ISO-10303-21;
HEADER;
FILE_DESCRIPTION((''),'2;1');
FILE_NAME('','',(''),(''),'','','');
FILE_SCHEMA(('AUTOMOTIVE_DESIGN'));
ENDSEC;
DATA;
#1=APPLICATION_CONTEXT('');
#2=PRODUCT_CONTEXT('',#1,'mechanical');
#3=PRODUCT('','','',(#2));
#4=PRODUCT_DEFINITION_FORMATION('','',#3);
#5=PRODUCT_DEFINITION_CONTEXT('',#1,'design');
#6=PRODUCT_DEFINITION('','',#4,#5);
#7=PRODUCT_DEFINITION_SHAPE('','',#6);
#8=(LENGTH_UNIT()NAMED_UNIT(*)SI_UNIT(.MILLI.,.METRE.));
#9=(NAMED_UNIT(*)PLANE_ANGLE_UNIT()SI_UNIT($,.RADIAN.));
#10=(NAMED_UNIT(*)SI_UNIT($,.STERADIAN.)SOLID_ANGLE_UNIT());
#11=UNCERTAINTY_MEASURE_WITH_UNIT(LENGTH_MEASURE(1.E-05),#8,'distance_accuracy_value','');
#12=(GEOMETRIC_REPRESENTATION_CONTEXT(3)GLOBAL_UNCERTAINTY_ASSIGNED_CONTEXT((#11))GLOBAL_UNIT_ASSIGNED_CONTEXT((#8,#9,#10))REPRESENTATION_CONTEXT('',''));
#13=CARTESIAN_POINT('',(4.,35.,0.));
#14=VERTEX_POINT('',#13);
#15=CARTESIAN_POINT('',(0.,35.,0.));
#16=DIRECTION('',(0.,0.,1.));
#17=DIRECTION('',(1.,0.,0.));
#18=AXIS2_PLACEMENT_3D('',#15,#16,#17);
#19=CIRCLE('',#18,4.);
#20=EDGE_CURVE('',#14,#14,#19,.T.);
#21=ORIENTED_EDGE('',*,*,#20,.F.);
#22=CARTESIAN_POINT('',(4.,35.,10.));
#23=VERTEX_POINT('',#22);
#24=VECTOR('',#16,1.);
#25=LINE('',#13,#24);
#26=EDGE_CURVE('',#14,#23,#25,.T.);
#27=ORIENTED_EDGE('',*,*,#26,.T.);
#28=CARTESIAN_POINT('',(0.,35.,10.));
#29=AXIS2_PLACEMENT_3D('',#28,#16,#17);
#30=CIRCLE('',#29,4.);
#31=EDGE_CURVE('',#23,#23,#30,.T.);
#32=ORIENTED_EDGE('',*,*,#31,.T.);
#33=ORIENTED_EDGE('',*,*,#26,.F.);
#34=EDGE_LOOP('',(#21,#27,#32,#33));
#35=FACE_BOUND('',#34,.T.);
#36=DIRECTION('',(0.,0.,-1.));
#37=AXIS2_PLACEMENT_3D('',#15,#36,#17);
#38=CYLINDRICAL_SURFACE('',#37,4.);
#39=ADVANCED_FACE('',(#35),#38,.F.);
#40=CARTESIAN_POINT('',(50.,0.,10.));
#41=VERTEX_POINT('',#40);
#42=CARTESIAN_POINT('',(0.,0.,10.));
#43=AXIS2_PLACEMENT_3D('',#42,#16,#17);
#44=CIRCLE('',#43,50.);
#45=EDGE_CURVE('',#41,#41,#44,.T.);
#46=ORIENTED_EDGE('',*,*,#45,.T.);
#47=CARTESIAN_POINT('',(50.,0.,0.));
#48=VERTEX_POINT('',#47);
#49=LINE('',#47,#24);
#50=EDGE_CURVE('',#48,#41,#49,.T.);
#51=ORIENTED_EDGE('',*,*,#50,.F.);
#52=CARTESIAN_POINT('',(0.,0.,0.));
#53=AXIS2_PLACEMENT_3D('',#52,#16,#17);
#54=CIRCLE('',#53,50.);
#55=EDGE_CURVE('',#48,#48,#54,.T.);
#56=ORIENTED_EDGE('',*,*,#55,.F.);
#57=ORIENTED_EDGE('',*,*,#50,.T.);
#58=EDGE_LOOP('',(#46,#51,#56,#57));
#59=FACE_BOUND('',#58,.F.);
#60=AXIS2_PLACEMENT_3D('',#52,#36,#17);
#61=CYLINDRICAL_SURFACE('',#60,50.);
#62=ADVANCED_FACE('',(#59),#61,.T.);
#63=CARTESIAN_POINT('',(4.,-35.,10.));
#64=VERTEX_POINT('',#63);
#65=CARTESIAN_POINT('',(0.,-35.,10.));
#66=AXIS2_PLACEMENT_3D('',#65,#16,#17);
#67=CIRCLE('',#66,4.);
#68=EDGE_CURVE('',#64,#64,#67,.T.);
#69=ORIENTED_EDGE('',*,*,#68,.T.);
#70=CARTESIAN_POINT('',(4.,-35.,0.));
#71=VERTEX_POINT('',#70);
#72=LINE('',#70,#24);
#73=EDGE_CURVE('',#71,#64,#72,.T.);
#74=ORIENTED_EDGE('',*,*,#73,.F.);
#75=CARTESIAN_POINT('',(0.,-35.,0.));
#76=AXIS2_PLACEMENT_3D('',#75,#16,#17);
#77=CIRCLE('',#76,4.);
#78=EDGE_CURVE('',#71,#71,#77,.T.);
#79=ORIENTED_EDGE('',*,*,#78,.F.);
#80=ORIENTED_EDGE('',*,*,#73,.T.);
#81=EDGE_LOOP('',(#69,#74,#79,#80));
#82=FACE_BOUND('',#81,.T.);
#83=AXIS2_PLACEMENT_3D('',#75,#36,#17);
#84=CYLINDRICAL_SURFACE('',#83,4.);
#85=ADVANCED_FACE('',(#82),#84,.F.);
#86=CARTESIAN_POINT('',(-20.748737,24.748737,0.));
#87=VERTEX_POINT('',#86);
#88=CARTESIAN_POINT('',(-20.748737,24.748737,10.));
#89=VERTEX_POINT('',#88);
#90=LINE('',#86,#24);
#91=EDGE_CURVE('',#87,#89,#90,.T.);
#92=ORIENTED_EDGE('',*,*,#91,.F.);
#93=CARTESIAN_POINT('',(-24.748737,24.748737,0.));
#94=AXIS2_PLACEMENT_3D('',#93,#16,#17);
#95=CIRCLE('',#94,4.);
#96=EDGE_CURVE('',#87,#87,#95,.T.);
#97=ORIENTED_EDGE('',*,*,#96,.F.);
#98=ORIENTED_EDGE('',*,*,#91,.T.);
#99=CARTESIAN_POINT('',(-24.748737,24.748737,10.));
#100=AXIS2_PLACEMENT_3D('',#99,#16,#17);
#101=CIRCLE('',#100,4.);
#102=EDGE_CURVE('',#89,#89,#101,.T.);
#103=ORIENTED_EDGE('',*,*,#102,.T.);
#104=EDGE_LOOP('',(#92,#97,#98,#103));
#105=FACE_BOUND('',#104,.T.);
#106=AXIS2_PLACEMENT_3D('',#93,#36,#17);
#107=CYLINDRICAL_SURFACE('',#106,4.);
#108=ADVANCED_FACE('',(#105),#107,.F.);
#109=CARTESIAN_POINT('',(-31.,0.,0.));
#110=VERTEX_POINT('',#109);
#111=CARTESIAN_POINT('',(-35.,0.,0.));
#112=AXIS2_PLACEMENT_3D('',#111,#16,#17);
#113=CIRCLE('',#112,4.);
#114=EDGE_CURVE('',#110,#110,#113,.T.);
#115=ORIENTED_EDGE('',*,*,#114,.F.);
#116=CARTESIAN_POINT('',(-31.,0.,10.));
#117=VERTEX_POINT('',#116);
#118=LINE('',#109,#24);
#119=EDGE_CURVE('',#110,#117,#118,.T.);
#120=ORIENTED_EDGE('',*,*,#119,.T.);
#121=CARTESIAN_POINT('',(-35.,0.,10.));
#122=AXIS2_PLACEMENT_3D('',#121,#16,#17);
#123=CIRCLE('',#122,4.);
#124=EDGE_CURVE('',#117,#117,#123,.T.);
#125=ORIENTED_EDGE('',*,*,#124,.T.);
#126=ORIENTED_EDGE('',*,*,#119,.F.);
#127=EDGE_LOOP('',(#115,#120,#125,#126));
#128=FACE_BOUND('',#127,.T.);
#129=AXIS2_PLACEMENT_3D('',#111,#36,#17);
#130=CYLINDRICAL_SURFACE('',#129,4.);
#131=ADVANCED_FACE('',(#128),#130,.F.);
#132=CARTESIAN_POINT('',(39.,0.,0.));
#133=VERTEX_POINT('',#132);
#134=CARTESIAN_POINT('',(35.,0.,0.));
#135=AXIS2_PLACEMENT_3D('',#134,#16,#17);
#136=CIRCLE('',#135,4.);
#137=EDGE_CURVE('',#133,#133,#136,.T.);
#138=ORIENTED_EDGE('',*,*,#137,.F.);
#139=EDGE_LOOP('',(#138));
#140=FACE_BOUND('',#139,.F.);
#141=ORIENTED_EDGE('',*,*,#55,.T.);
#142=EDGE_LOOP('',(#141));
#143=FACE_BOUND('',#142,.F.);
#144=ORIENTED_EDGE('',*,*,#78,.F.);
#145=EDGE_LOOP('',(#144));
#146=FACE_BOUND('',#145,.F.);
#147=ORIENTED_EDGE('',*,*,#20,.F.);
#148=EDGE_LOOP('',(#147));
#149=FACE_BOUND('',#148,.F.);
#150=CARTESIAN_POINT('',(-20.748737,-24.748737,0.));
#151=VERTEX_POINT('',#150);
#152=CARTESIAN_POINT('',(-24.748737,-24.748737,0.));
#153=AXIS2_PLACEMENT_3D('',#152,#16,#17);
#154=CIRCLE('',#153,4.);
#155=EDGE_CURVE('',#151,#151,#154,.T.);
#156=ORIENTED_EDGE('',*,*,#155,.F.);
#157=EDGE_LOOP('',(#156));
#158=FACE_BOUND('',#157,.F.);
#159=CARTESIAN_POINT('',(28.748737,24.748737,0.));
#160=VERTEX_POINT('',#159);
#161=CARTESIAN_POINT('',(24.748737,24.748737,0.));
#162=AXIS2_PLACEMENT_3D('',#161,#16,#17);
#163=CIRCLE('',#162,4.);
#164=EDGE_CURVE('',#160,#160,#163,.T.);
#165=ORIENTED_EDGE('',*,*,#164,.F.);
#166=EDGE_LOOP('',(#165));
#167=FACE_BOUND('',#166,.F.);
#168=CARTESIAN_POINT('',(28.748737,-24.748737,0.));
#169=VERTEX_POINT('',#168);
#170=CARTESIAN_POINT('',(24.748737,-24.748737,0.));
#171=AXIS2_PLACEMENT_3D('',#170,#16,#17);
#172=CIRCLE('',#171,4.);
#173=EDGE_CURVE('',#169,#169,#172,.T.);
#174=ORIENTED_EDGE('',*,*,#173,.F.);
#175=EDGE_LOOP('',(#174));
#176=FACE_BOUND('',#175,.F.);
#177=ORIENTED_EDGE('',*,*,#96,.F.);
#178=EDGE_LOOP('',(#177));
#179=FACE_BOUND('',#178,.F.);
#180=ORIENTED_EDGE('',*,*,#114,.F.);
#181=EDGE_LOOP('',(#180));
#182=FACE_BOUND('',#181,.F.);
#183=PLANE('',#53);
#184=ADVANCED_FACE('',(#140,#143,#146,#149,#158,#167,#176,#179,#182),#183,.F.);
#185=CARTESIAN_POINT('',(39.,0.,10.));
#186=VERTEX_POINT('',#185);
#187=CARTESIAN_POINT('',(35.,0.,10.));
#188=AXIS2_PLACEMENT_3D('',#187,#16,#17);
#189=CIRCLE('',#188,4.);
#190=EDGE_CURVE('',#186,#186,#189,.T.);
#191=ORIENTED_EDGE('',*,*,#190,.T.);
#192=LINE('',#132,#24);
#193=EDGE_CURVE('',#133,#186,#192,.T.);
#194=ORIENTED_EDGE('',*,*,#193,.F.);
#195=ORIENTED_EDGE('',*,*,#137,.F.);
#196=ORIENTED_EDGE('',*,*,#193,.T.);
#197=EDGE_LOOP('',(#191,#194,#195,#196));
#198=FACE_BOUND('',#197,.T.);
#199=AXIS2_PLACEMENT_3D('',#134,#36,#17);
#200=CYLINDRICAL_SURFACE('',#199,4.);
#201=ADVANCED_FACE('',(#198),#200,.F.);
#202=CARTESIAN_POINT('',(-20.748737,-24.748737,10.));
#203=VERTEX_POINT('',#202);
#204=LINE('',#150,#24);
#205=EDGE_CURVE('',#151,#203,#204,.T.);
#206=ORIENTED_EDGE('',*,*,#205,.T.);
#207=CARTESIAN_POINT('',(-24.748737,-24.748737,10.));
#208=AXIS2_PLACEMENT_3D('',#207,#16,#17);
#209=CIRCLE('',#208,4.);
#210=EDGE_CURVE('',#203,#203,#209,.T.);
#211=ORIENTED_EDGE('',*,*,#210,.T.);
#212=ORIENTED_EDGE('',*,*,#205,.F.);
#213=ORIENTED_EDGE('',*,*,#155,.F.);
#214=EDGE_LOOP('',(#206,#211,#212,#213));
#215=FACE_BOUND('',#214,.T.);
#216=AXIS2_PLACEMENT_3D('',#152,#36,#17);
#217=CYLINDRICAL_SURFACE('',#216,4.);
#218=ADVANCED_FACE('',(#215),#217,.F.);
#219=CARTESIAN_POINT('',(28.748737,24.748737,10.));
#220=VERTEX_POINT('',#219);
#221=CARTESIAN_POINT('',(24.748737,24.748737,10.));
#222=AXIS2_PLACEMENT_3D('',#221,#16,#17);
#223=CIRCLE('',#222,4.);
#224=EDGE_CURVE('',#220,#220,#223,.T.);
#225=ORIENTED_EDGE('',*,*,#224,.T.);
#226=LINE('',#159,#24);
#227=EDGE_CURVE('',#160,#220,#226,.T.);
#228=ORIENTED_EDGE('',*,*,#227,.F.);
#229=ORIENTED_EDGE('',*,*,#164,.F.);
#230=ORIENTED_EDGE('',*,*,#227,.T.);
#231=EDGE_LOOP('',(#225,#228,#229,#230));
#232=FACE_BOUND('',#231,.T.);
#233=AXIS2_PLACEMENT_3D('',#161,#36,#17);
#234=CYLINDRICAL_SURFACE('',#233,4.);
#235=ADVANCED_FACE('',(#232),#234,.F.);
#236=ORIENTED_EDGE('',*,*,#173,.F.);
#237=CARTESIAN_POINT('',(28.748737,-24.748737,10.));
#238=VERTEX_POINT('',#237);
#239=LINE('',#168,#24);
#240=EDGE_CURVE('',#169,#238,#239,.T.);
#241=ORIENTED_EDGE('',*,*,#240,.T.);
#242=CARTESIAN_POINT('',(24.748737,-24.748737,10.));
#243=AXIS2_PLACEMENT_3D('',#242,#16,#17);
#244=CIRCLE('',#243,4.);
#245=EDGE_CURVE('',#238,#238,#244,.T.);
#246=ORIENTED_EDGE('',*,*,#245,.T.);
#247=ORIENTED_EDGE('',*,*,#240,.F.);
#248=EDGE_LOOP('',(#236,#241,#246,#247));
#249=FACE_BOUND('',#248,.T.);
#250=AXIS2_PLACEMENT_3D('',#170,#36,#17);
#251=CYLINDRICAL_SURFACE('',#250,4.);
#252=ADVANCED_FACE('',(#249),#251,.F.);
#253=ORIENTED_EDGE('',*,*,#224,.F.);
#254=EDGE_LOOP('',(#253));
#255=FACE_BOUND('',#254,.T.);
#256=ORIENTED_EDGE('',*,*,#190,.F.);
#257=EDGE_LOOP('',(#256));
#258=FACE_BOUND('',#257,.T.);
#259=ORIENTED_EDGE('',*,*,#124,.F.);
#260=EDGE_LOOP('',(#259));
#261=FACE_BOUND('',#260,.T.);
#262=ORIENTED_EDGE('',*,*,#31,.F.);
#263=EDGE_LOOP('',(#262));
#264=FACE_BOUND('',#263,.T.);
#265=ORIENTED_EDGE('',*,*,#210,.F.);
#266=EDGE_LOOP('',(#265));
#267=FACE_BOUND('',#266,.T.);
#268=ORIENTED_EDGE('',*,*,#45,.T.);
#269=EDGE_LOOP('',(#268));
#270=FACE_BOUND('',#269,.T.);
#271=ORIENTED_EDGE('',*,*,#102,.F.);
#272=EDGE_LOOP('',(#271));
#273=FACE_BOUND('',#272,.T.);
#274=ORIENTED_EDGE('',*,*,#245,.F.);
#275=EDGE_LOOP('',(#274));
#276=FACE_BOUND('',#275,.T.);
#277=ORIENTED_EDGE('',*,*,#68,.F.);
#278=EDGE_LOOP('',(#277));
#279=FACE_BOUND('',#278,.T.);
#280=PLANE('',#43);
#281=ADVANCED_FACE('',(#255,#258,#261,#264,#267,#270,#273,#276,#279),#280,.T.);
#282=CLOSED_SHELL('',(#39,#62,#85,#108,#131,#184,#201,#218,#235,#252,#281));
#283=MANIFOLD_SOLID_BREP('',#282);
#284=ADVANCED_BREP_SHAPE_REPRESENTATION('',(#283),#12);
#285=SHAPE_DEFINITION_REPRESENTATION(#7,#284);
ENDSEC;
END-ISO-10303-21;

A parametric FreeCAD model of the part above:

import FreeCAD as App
import Part
import Sketcher
from FreeCAD import Vector
Q = App.Units.Quantity

doc = App.newDocument("Part")
body = doc.addObject("PartDesign::Body", "Body")

# Sketch on XY plane
sketch1 = body.newObject("Sketcher::SketchObject", "Sketch")
sketch1.AttachmentSupport = (doc.getObject("XY_Plane"), [""])
sketch1.MapMode = "FlatFace"
sketch1.addGeometry(Part.Circle(Vector(0, 0, 0), Vector(0, 0, 1), 50), False)
sketch1.addGeometry(Part.Circle(Vector(-24.7, -24.7, 0), Vector(0, 0, 1), 4), False)
sketch1.addGeometry(Part.Circle(Vector(0, -35, 0), Vector(0, 0, 1), 4), False)
sketch1.addGeometry(Part.Circle(Vector(24.7, -24.7, 0), Vector(0, 0, 1), 4), False)
sketch1.addGeometry(Part.Circle(Vector(-35, 0, 0), Vector(0, 0, 1), 4), False)
sketch1.addGeometry(Part.Circle(Vector(-24.7, 24.7, 0), Vector(0, 0, 1), 4), False)
sketch1.addGeometry(Part.Circle(Vector(35, 0, 0), Vector(0, 0, 1), 4), False)
sketch1.addGeometry(Part.Circle(Vector(0, 35, 0), Vector(0, 0, 1), 4), False)
sketch1.addGeometry(Part.Circle(Vector(24.7, 24.7, 0), Vector(0, 0, 1), 4), False)
sketch1.addConstraint(Sketcher.Constraint("Coincident", 0, 3, -1, 1))
sketch1.addConstraint(Sketcher.Constraint("Equal", 1, 2))
sketch1.addConstraint(Sketcher.Constraint("Equal", 2, 3))
sketch1.addConstraint(Sketcher.Constraint("Equal", 3, 4))
sketch1.addConstraint(Sketcher.Constraint("Equal", 4, 5))
sketch1.addConstraint(Sketcher.Constraint("Equal", 5, 6))
sketch1.addConstraint(Sketcher.Constraint("Equal", 6, 7))
sketch1.addConstraint(Sketcher.Constraint("Equal", 7, 8))
sketch1.addConstraint(Sketcher.Constraint("Symmetric", 3, 3, 5, 3, -1, 1))
sketch1.addConstraint(Sketcher.Constraint("Symmetric", 4, 3, 6, 3, -1, 1))
sketch1.addConstraint(Sketcher.Constraint("Symmetric", 2, 3, 7, 3, -1, 1))
sketch1.addConstraint(Sketcher.Constraint("Symmetric", 1, 3, 8, 3, -1, 1))
sketch1.addConstraint(Sketcher.Constraint("Symmetric", 1, 3, 3, 3, -2))
sketch1.addConstraint(Sketcher.Constraint("PointOnObject", 2, 3, -2))
sketch1.addConstraint(Sketcher.Constraint("PointOnObject", 4, 3, -1))
sketch1.addConstraint(Sketcher.Constraint("Diameter", 0, Q("100 mm")))
sketch1.addConstraint(Sketcher.Constraint("Diameter", 1, Q("8 mm")))
sketch1.addConstraint(Sketcher.Constraint("DistanceY", 2, 3, -1, 1, Q("35 mm")))
sketch1.addConstraint(Sketcher.Constraint("DistanceX", 4, 3, -1, 1, Q("35 mm")))
sketch1.addConstraint(Sketcher.Constraint("DistanceX", 1, 3, -1, 1, Q("24.748737 mm")))
sketch1.addConstraint(Sketcher.Constraint("DistanceY", 1, 3, -1, 1, Q("24.748737 mm")))
pad1 = body.newObject("PartDesign::Pad", "Pad")
pad1.Profile = sketch1
pad1.Length = 10

doc.recompute()
